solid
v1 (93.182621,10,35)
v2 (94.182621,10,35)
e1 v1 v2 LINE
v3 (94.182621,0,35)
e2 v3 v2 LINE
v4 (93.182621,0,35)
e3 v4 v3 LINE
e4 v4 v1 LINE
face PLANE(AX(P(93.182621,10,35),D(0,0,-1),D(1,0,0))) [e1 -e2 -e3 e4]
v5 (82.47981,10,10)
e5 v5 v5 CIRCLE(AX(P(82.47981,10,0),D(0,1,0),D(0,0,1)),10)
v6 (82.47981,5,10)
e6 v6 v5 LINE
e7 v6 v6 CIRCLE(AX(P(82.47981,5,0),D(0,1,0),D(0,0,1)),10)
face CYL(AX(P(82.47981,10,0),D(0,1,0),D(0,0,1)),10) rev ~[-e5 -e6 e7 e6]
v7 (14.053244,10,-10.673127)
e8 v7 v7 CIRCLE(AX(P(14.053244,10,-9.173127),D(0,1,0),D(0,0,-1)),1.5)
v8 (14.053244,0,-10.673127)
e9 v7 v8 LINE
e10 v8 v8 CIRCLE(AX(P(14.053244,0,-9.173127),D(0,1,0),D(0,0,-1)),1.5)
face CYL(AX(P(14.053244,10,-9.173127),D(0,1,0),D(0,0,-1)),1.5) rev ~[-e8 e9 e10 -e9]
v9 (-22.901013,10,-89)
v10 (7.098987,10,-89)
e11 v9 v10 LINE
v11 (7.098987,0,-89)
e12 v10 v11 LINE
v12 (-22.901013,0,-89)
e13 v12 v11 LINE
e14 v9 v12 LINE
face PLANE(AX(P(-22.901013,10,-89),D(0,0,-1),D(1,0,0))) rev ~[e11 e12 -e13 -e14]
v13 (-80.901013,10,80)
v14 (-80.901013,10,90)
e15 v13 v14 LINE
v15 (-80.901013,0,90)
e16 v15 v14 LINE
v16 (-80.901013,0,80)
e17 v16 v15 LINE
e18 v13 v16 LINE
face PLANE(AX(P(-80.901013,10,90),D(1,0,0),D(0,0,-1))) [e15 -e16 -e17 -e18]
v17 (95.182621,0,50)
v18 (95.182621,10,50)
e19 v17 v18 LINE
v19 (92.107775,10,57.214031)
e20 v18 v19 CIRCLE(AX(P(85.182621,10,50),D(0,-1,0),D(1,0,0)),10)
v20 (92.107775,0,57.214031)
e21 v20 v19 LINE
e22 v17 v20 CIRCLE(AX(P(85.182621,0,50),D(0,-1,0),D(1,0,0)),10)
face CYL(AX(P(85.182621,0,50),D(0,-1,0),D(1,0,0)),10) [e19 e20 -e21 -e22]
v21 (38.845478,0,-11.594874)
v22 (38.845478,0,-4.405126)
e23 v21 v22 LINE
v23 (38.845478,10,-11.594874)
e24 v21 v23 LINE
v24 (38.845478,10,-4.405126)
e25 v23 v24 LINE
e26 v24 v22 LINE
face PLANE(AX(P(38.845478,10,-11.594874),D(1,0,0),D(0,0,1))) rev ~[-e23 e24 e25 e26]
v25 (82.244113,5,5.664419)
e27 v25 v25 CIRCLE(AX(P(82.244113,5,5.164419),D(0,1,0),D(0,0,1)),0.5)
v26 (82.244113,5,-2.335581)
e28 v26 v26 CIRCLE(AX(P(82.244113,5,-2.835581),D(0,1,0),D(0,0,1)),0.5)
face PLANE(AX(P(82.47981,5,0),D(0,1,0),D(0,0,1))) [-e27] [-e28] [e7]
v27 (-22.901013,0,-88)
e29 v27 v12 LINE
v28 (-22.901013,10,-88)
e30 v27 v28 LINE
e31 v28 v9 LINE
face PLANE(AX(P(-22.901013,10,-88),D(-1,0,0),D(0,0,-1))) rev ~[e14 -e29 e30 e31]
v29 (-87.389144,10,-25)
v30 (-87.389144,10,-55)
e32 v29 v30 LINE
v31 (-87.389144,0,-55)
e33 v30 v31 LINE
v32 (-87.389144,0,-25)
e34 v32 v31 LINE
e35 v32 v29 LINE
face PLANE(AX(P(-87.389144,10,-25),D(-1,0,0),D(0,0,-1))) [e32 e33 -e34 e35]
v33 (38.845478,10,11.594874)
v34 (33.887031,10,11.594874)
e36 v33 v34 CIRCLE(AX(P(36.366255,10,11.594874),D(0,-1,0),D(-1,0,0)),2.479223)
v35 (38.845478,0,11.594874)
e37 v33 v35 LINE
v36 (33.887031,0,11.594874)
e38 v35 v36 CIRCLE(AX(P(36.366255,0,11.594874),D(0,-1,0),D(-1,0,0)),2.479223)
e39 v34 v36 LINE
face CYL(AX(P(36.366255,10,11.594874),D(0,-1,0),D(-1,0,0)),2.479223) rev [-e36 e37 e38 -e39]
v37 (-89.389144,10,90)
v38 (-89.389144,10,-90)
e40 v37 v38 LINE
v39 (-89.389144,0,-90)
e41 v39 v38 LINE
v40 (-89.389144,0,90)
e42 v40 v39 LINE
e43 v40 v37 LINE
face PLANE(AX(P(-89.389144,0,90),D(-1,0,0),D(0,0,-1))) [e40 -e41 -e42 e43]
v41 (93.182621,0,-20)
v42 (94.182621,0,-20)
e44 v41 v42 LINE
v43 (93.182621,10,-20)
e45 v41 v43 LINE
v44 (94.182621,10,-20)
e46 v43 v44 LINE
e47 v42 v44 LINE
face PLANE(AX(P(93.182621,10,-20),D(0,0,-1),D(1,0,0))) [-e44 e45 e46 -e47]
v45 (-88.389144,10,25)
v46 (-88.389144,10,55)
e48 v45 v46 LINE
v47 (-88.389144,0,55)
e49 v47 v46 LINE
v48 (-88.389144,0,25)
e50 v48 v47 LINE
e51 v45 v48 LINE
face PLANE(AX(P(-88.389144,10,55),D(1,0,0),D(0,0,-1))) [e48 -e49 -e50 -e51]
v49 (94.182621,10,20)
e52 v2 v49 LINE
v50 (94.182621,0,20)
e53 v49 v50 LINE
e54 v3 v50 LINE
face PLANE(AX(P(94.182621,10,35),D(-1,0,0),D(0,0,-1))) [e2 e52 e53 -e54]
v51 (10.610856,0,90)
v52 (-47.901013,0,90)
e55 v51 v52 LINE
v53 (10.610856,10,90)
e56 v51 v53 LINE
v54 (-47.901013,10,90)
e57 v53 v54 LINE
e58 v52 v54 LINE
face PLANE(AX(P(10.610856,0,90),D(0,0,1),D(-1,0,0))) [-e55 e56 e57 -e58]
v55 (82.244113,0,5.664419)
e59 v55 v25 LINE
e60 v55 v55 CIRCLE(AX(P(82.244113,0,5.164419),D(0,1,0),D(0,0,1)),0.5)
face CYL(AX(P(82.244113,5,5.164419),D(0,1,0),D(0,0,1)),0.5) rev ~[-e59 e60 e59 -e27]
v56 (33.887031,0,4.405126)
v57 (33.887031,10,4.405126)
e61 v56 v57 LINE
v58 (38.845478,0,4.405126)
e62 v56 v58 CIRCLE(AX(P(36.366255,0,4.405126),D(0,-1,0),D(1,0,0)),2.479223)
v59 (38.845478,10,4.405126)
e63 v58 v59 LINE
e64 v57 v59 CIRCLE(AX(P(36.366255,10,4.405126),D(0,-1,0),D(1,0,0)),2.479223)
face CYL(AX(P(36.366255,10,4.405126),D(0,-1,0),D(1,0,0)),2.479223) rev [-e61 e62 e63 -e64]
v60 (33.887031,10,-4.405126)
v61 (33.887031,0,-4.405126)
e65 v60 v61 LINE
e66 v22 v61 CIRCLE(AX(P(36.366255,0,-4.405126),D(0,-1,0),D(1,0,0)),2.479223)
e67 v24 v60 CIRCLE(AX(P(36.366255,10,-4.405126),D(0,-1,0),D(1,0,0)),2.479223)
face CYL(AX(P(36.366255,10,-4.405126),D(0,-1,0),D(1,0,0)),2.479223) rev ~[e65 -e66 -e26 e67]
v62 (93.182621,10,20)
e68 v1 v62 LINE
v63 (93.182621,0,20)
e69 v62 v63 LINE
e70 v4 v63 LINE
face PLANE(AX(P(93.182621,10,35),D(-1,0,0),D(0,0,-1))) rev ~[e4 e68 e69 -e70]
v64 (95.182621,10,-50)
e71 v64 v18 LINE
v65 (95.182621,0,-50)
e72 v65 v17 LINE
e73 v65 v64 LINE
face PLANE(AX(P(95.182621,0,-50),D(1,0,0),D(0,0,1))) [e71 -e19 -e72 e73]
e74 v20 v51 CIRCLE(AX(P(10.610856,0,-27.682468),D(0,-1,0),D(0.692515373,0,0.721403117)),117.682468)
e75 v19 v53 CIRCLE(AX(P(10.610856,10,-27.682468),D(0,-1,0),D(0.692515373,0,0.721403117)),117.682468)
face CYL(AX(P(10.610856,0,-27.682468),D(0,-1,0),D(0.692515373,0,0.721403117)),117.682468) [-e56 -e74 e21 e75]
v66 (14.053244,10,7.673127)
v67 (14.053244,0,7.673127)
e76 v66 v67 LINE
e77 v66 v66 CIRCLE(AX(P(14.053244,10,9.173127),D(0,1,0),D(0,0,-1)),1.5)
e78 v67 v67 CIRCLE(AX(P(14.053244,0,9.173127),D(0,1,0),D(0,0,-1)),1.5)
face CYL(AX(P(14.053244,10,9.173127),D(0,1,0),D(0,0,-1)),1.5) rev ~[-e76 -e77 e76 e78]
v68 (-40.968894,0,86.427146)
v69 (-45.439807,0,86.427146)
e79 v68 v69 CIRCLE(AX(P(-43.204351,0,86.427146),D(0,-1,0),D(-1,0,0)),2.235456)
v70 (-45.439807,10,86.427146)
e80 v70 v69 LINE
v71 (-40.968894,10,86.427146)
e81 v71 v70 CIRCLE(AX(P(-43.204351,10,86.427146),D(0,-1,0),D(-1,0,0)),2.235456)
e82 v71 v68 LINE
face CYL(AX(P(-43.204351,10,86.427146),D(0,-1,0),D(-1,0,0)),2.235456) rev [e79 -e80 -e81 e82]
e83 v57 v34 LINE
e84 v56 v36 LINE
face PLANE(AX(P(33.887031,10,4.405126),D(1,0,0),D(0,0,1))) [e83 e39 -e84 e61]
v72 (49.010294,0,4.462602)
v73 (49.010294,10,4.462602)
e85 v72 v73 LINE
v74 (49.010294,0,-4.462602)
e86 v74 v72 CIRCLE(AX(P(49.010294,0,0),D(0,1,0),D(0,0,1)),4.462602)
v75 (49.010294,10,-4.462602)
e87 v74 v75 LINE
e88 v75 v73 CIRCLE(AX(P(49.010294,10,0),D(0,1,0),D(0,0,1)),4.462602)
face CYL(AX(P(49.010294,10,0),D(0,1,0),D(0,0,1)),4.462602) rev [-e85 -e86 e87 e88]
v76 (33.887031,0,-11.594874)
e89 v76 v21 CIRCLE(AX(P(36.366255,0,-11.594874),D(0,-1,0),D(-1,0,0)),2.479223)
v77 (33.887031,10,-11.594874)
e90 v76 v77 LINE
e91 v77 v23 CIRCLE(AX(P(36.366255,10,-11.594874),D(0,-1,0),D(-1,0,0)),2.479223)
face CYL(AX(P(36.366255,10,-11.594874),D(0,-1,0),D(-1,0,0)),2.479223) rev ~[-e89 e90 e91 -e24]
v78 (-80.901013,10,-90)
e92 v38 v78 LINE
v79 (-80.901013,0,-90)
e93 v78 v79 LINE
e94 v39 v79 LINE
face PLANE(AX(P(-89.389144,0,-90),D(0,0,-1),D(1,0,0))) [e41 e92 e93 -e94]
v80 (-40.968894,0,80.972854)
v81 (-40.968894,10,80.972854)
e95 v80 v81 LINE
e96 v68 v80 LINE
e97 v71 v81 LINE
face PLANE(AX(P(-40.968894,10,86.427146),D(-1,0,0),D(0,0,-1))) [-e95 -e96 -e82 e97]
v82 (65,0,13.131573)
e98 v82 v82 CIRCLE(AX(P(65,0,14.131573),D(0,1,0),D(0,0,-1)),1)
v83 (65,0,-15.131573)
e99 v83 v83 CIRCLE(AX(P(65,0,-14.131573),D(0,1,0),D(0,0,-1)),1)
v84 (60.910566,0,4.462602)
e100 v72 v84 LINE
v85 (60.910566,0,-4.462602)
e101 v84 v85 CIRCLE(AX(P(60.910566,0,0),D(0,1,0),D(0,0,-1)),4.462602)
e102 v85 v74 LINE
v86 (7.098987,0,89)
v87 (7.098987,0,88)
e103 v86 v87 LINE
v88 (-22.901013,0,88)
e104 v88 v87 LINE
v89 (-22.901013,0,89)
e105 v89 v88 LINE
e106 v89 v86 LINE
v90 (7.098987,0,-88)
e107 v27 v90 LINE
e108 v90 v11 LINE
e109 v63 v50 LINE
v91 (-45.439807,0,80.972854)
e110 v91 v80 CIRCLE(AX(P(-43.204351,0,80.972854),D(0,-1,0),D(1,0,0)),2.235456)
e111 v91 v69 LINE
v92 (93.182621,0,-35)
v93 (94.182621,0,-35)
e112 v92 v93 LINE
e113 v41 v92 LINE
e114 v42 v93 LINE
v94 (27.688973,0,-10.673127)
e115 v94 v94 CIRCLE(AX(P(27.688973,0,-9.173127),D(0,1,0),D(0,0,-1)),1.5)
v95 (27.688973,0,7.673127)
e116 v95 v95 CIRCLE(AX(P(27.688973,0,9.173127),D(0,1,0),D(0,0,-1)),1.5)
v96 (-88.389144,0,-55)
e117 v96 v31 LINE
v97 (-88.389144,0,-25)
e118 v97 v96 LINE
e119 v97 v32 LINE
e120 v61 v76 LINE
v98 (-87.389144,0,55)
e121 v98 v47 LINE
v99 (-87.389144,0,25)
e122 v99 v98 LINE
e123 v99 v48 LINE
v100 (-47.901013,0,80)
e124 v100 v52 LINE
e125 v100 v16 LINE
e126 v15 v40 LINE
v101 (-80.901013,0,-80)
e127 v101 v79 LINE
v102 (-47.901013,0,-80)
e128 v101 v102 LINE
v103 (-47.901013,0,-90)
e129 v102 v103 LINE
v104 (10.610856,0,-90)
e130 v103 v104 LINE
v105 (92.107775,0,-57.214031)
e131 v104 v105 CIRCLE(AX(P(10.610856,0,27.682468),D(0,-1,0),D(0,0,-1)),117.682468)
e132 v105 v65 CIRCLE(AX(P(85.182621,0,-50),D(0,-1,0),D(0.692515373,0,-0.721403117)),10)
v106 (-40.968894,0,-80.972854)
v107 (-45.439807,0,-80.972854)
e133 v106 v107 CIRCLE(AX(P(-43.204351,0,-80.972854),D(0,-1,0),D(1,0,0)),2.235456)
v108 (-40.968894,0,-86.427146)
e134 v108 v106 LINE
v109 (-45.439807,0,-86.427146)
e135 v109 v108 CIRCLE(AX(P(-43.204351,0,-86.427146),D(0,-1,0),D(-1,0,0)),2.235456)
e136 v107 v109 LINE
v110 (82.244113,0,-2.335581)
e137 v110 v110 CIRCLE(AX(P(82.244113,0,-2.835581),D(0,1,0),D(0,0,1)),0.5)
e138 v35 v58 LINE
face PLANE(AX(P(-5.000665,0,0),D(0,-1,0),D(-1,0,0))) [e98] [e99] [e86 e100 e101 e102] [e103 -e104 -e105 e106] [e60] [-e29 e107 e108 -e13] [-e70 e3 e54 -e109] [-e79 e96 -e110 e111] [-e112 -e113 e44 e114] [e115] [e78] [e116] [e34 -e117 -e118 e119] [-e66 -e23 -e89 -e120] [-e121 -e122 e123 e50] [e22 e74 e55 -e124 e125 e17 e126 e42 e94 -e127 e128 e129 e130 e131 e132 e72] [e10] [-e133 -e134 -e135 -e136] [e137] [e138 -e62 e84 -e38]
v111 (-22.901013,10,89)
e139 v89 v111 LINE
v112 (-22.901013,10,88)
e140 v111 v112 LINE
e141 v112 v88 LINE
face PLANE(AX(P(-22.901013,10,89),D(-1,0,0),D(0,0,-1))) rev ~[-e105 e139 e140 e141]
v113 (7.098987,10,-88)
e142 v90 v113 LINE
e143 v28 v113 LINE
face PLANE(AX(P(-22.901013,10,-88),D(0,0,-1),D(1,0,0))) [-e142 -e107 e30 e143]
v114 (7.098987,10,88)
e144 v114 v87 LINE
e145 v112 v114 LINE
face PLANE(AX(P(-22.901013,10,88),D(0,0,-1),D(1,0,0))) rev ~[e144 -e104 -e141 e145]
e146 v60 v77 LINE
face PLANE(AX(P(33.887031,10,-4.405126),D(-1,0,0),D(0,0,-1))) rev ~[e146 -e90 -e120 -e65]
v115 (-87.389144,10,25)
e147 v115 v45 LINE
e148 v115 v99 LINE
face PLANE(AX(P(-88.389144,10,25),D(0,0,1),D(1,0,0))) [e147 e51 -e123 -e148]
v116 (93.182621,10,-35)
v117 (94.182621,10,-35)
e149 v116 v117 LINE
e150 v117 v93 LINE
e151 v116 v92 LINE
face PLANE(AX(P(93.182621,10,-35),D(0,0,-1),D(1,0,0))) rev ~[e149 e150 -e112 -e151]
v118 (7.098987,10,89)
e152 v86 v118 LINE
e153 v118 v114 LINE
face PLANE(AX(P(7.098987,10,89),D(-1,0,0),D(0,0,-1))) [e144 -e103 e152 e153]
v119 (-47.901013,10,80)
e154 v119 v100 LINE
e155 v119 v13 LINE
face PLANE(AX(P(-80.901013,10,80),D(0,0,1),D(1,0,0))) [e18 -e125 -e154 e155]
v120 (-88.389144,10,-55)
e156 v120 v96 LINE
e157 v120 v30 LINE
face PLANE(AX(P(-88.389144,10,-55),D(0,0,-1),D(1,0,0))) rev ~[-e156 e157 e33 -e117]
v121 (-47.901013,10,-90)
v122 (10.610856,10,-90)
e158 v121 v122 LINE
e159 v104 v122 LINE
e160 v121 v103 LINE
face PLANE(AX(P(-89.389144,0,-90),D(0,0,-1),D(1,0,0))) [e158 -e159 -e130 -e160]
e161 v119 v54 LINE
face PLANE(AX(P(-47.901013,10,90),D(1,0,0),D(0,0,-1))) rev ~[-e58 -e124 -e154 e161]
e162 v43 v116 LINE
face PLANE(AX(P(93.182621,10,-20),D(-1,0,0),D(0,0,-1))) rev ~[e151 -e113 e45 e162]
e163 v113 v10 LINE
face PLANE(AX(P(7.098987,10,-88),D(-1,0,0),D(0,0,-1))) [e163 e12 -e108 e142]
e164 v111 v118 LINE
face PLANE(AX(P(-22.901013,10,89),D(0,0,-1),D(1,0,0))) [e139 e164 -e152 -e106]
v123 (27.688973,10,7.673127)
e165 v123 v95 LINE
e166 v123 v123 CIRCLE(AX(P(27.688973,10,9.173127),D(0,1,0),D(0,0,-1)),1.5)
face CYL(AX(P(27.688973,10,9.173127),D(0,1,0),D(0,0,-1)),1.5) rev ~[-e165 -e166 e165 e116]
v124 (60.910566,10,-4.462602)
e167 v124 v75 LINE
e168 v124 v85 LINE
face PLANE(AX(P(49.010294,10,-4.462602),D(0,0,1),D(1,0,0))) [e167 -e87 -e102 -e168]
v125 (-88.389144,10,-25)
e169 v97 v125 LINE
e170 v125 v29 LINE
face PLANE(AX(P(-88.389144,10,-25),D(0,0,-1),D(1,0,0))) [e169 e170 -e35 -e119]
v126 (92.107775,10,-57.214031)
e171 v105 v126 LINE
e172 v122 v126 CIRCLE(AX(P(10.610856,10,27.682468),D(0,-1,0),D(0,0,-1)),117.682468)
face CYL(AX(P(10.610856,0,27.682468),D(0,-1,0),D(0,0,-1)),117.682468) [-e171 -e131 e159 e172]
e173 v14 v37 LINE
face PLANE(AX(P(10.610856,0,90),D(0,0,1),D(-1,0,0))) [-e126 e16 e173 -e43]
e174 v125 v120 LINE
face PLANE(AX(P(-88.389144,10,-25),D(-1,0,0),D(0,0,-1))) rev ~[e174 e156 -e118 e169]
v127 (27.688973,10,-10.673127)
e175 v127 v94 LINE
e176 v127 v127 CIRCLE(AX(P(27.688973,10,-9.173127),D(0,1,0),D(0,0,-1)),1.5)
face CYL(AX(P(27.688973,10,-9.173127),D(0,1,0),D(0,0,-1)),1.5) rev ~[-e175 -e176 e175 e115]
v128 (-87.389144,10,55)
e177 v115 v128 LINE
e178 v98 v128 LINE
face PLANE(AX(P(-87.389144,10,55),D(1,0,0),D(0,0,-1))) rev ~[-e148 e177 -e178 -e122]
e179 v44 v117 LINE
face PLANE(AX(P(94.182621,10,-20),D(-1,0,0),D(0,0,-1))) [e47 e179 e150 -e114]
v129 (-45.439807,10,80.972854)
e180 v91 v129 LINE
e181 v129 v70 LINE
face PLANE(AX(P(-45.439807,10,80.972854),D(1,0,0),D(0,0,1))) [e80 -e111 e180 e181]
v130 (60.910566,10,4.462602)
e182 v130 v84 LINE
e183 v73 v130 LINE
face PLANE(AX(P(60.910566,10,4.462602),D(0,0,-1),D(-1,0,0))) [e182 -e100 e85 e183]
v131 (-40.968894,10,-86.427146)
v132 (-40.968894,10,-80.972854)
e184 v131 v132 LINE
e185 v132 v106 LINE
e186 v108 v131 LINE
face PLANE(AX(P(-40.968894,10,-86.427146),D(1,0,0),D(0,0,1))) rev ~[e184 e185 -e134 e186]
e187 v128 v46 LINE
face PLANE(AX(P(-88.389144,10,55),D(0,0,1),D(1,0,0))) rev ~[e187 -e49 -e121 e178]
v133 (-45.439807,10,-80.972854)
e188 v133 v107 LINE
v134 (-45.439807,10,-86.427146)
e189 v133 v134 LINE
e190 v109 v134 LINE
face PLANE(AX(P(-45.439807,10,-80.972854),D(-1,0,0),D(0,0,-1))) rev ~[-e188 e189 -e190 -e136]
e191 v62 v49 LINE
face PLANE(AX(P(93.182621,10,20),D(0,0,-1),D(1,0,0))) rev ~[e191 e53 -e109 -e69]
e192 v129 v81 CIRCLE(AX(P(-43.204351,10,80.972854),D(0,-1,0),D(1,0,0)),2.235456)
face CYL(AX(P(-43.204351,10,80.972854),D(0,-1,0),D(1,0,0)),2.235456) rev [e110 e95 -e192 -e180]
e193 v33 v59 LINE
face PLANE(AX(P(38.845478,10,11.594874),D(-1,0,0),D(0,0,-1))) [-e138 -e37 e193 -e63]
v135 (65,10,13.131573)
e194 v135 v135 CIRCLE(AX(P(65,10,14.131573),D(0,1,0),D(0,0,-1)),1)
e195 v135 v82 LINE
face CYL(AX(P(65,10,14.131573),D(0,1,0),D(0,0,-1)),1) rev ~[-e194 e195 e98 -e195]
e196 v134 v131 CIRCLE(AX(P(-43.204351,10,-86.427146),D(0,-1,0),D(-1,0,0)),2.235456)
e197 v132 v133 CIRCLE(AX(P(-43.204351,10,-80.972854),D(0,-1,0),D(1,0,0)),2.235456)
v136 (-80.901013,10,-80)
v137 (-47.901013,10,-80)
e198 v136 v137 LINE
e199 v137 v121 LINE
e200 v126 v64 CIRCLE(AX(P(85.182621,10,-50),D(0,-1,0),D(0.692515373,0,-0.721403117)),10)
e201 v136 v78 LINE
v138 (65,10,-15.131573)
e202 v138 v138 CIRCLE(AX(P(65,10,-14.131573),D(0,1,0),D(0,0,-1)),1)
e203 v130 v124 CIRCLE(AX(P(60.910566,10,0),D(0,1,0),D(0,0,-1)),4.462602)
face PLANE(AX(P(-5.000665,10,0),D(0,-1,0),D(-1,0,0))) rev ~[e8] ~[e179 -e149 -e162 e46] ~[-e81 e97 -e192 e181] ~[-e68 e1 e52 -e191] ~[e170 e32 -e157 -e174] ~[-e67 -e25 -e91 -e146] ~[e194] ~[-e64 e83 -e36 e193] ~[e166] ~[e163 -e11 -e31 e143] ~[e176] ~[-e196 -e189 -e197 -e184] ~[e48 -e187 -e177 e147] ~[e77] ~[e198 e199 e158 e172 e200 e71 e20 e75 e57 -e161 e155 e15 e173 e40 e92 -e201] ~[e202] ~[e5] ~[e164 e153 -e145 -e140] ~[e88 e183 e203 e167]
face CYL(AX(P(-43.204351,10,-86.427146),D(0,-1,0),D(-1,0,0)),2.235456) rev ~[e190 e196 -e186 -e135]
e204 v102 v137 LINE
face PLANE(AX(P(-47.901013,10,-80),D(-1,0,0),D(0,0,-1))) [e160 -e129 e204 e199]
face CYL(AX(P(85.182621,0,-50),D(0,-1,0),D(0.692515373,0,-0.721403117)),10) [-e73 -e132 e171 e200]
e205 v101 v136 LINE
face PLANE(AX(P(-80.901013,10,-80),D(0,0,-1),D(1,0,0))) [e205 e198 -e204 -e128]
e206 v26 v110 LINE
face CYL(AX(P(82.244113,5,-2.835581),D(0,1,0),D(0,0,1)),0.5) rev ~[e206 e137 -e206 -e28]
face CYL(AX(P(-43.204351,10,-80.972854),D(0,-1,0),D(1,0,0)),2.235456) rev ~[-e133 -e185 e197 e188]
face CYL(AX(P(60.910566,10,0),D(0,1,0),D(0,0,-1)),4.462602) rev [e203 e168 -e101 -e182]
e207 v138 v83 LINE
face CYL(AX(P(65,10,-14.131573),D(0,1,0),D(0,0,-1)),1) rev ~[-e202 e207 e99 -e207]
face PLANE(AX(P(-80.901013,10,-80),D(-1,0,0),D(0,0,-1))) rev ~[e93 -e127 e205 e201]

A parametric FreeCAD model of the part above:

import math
import FreeCAD as App
import Part
import Sketcher

doc = App.newDocument("Part")
params = doc.addObject("Spreadsheet::Sheet", "Params")
for row, (alias, value) in enumerate([
    ("sketch1_radius", "10 mm"),
    ("sketch1_width", "100 mm"),
    ("sketch1_height", "180 mm"),
    ("pad1_length", "10 mm"),
    ("sketch2_diameter", "2 mm"),
    ("sketch2_diameter2", "3 mm"),
    ("sketch2_width", "33 mm"),
    ("sketch2_height", "10 mm"),
    ("pocket1_length", "30 mm"),
    ("sketch3_diameter", "20 mm"),
    ("pocket2_length", "10 mm"),
    ("pocket3_length", "30 mm"),
    ("sketch5_width", "30 mm"),
    ("sketch5_width2", "1 mm"),
    ("sketch5_height", "15 mm"),
    ("pocket4_length", "30 mm"),
    ("sketch6_diameter", "1 mm"),
    ("pocket5_length", "30 mm"),
], start=1):
    params.set(f"A{row}", alias)
    params.set(f"B{row}", "=" + value)
    params.setAlias(f"B{row}", alias)

body = doc.addObject("PartDesign::Body", "Body")

# Sketch on XZ plane
sketch1 = body.newObject("Sketcher::SketchObject", "Sketch")
sketch1.AttachmentSupport = (doc.getObject("XZ_Plane"), [""])
sketch1.MapMode = "FlatFace"
sketch1.addGeometry(Part.LineSegment(App.Vector(-89, -90, 0), App.Vector(-89, 90, 0)), False)
sketch1.addGeometry(Part.LineSegment(App.Vector(-89, 90, 0), App.Vector(11, 90, 0)), False)
sketch1.addGeometry(Part.ArcOfCircle(Part.Circle(App.Vector(11, -28, 0), App.Vector(0, 0, 1), 118), math.radians(46), math.radians(90)), False)
sketch1.addGeometry(Part.ArcOfCircle(Part.Circle(App.Vector(85, 50, 0), App.Vector(0, 0, 1), 10), math.radians(0), math.radians(46)), False)
sketch1.addGeometry(Part.LineSegment(App.Vector(95, 50, 0), App.Vector(95, -50, 0)), False)
sketch1.addGeometry(Part.ArcOfCircle(Part.Circle(App.Vector(85, -50, 0), App.Vector(0, 0, 1), 10), math.radians(-46), math.radians(0)), False)
sketch1.addGeometry(Part.ArcOfCircle(Part.Circle(App.Vector(11, 28, 0), App.Vector(0, 0, 1), 118), math.radians(-90), math.radians(-46)), False)
sketch1.addGeometry(Part.LineSegment(App.Vector(11, -90, 0), App.Vector(-89, -90, 0)), False)
sketch1.addConstraint(Sketcher.Constraint("Coincident", 0, 2, 1, 1))
sketch1.addConstraint(Sketcher.Constraint("Tangent", 1, 2, 2, 2))
sketch1.addConstraint(Sketcher.Constraint("Tangent", 2, 1, 3, 2))
sketch1.addConstraint(Sketcher.Constraint("Tangent", 3, 1, 4, 1))
sketch1.addConstraint(Sketcher.Constraint("Tangent", 4, 2, 5, 2))
sketch1.addConstraint(Sketcher.Constraint("Tangent", 5, 1, 6, 2))
sketch1.addConstraint(Sketcher.Constraint("Tangent", 6, 1, 7, 1))
sketch1.addConstraint(Sketcher.Constraint("Coincident", 7, 2, 0, 1))
sketch1.addConstraint(Sketcher.Constraint("Vertical", 0))
sketch1.addConstraint(Sketcher.Constraint("Horizontal", 1))
sketch1.addConstraint(Sketcher.Constraint("Vertical", 4))
sketch1.addConstraint(Sketcher.Constraint("Horizontal", 7))
sketch1.addConstraint(Sketcher.Constraint("Equal", 3, 5))
sketch1.addConstraint(Sketcher.Constraint("Equal", 2, 6))
sketch1.addConstraint(Sketcher.Constraint("Symmetric", 2, 3, 6, 3, -1))
sketch1.addConstraint(Sketcher.Constraint("Equal", 7, 4))
sketch1.addConstraint(Sketcher.Constraint("Radius", 3, 10.0))
sketch1.addConstraint(Sketcher.Constraint("DistanceX", 1, 1, 1, 2, 100.0))
sketch1.addConstraint(Sketcher.Constraint("DistanceY", 0, 1, 0, 2, 180.0))
sketch1.addConstraint(Sketcher.Constraint("Radius", 2, 117.682468))
sketch1.addConstraint(Sketcher.Constraint("DistanceX", -1, 1, 3, 3, 85.182621))
sketch1.setExpression("Constraints[16]", "Params.sketch1_radius")
sketch1.setExpression("Constraints[17]", "Params.sketch1_width")
sketch1.setExpression("Constraints[18]", "Params.sketch1_height")
pad1 = body.newObject("PartDesign::Pad", "Pad")
pad1.Profile = sketch1
pad1.setExpression("Length", "Params.pad1_length")
pad1.Reversed = True

# Sketch on XZ plane
sketch2 = body.newObject("Sketcher::SketchObject", "Sketch001")
sketch2.AttachmentSupport = (doc.getObject("XZ_Plane"), [""])
sketch2.MapMode = "FlatFace"
sketch2.AttachmentOffset = App.Placement(App.Vector(0, 0, -10), App.Rotation())
sketch2.addGeometry(Part.Circle(App.Vector(65, -14.1, 0), App.Vector(0, 0, 1), 1), False)
sketch2.addGeometry(Part.Circle(App.Vector(27.7, -9.2, 0), App.Vector(0, 0, 1), 1.5), False)
sketch2.addGeometry(Part.Circle(App.Vector(14.1, -9.2, 0), App.Vector(0, 0, 1), 1.5), False)
sketch2.addGeometry(Part.Circle(App.Vector(14.1, 9.2, 0), App.Vector(0, 0, 1), 1.5), False)
sketch2.addGeometry(Part.Circle(App.Vector(27.7, 9.2, 0), App.Vector(0, 0, 1), 1.5), False)
sketch2.addGeometry(Part.Circle(App.Vector(65, 14.1, 0), App.Vector(0, 0, 1), 1), False)
sketch2.addGeometry(Part.LineSegment(App.Vector(-41, -81, 0), App.Vector(-41, -86.4, 0)), False)
sketch2.addGeometry(Part.ArcOfCircle(Part.Circle(App.Vector(-43.2, -86.4, 0), App.Vector(0, 0, 1), 2.2), math.radians(180), math.radians(360)), False)
sketch2.addGeometry(Part.LineSegment(App.Vector(-45.4, -86.4, 0), App.Vector(-45.4, -81, 0)), False)
sketch2.addGeometry(Part.ArcOfCircle(Part.Circle(App.Vector(-43.2, -81, 0), App.Vector(0, 0, 1), 2.2), math.radians(0), math.radians(180)), False)
sketch2.addGeometry(Part.LineSegment(App.Vector(38.8, -4.4, 0), App.Vector(38.8, -11.6, 0)), False)
sketch2.addGeometry(Part.ArcOfCircle(Part.Circle(App.Vector(36.4, -11.6, 0), App.Vector(0, 0, 1), 2.5), math.radians(-180), math.radians(0)), False)
sketch2.addGeometry(Part.LineSegment(App.Vector(33.9, -11.6, 0), App.Vector(33.9, -4.4, 0)), False)
sketch2.addGeometry(Part.ArcOfCircle(Part.Circle(App.Vector(36.4, -4.4, 0), App.Vector(0, 0, 1), 2.5), math.radians(0), math.radians(180)), False)
sketch2.addGeometry(Part.LineSegment(App.Vector(-80.9, -90, 0), App.Vector(-80.9, -80, 0)), False)
sketch2.addGeometry(Part.LineSegment(App.Vector(-80.9, -80, 0), App.Vector(-47.9, -80, 0)), False)
sketch2.addGeometry(Part.LineSegment(App.Vector(-47.9, -80, 0), App.Vector(-47.9, -90, 0)), False)
sketch2.addGeometry(Part.LineSegment(App.Vector(-47.9, -90, 0), App.Vector(-80.9, -90, 0)), False)
sketch2.addGeometry(Part.LineSegment(App.Vector(38.8, 11.6, 0), App.Vector(38.8, 4.4, 0)), False)
sketch2.addGeometry(Part.ArcOfCircle(Part.Circle(App.Vector(36.4, 4.4, 0), App.Vector(0, 0, 1), 2.5), math.radians(-180), math.radians(0)), False)
sketch2.addGeometry(Part.LineSegment(App.Vector(33.9, 4.4, 0), App.Vector(33.9, 11.6, 0)), False)
sketch2.addGeometry(Part.ArcOfCircle(Part.Circle(App.Vector(36.4, 11.6, 0), App.Vector(0, 0, 1), 2.5), math.radians(0), math.radians(180)), False)
sketch2.addGeometry(Part.LineSegment(App.Vector(-41, 86.4, 0), App.Vector(-41, 81, 0)), False)
sketch2.addGeometry(Part.ArcOfCircle(Part.Circle(App.Vector(-43.2, 81, 0), App.Vector(0, 0, 1), 2.2), math.radians(180), math.radians(360)), False)
sketch2.addGeometry(Part.LineSegment(App.Vector(-45.4, 81, 0), App.Vector(-45.4, 86.4, 0)), False)
sketch2.addGeometry(Part.ArcOfCircle(Part.Circle(App.Vector(-43.2, 86.4, 0), App.Vector(0, 0, 1), 2.2), math.radians(0), math.radians(180)), False)
sketch2.addGeometry(Part.LineSegment(App.Vector(-80.9, 80, 0), App.Vector(-80.9, 90, 0)), False)
sketch2.addGeometry(Part.LineSegment(App.Vector(-80.9, 90, 0), App.Vector(-47.9, 90, 0)), False)
sketch2.addGeometry(Part.LineSegment(App.Vector(-47.9, 90, 0), App.Vector(-47.9, 80, 0)), False)
sketch2.addGeometry(Part.LineSegment(App.Vector(-47.9, 80, 0), App.Vector(-80.9, 80, 0)), False)
sketch2.addConstraint(Sketcher.Constraint("Tangent", 6, 2, 7, 2))
sketch2.addConstraint(Sketcher.Constraint("Tangent", 7, 1, 8, 1))
sketch2.addConstraint(Sketcher.Constraint("Tangent", 8, 2, 9, 2))
sketch2.addConstraint(Sketcher.Constraint("Tangent", 9, 1, 6, 1))
sketch2.addConstraint(Sketcher.Constraint("Tangent", 10, 2, 11, 2))
sketch2.addConstraint(Sketcher.Constraint("Tangent", 11, 1, 12, 1))
sketch2.addConstraint(Sketcher.Constraint("Tangent", 12, 2, 13, 2))
sketch2.addConstraint(Sketcher.Constraint("Tangent", 13, 1, 10, 1))
sketch2.addConstraint(Sketcher.Constraint("Coincident", 14, 2, 15, 1))
sketch2.addConstraint(Sketcher.Constraint("Coincident", 15, 2, 16, 1))
sketch2.addConstraint(Sketcher.Constraint("Coincident", 16, 2, 17, 1))
sketch2.addConstraint(Sketcher.Constraint("Coincident", 17, 2, 14, 1))
sketch2.addConstraint(Sketcher.Constraint("Tangent", 18, 2, 19, 2))
sketch2.addConstraint(Sketcher.Constraint("Tangent", 19, 1, 20, 1))
sketch2.addConstraint(Sketcher.Constraint("Tangent", 20, 2, 21, 2))
sketch2.addConstraint(Sketcher.Constraint("Tangent", 21, 1, 18, 1))
sketch2.addConstraint(Sketcher.Constraint("Tangent", 22, 2, 23, 2))
sketch2.addConstraint(Sketcher.Constraint("Tangent", 23, 1, 24, 1))
sketch2.addConstraint(Sketcher.Constraint("Tangent", 24, 2, 25, 2))
sketch2.addConstraint(Sketcher.Constraint("Tangent", 25, 1, 22, 1))
sketch2.addConstraint(Sketcher.Constraint("Coincident", 26, 2, 27, 1))
sketch2.addConstraint(Sketcher.Constraint("Coincident", 27, 2, 28, 1))
sketch2.addConstraint(Sketcher.Constraint("Coincident", 28, 2, 29, 1))
sketch2.addConstraint(Sketcher.Constraint("Coincident", 29, 2, 26, 1))
sketch2.addConstraint(Sketcher.Constraint("Vertical", 6))
sketch2.addConstraint(Sketcher.Constraint("Vertical", 8))
sketch2.addConstraint(Sketcher.Constraint("Vertical", 10))
sketch2.addConstraint(Sketcher.Constraint("Vertical", 12))
sketch2.addConstraint(Sketcher.Constraint("Vertical", 14))
sketch2.addConstraint(Sketcher.Constraint("Horizontal", 15))
sketch2.addConstraint(Sketcher.Constraint("Vertical", 16))
sketch2.addConstraint(Sketcher.Constraint("Horizontal", 17))
sketch2.addConstraint(Sketcher.Constraint("Vertical", 18))
sketch2.addConstraint(Sketcher.Constraint("Vertical", 20))
sketch2.addConstraint(Sketcher.Constraint("Vertical", 22))
sketch2.addConstraint(Sketcher.Constraint("Vertical", 24))
sketch2.addConstraint(Sketcher.Constraint("Vertical", 26))
sketch2.addConstraint(Sketcher.Constraint("Horizontal", 27))
sketch2.addConstraint(Sketcher.Constraint("Vertical", 28))
sketch2.addConstraint(Sketcher.Constraint("Horizontal", 29))
sketch2.addConstraint(Sketcher.Constraint("Equal", 1, 2))
sketch2.addConstraint(Sketcher.Constraint("Equal", 2, 3))
sketch2.addConstraint(Sketcher.Constraint("Equal", 3, 4))
sketch2.addConstraint(Sketcher.Constraint("Equal", 0, 5))
sketch2.addConstraint(Sketcher.Constraint("Equal", 13, 19))
sketch2.addConstraint(Sketcher.Constraint("Equal", 9, 23))
sketch2.addConstraint(Sketcher.Constraint("Symmetric", 2, 3, 3, 3, -1))
sketch2.addConstraint(Sketcher.Constraint("Symmetric", 1, 3, 4, 3, -1))
sketch2.addConstraint(Sketcher.Constraint("Symmetric", 0, 3, 5, 3, -1))
sketch2.addConstraint(Sketcher.Constraint("Symmetric", 13, 3, 19, 3, -1))
sketch2.addConstraint(Sketcher.Constraint("Symmetric", 9, 3, 23, 3, -1))
sketch2.addConstraint(Sketcher.Constraint("Symmetric", 17, 2, 26, 2, -1))
sketch2.addConstraint(Sketcher.Constraint("Symmetric", 15, 2, 28, 2, -1))
sketch2.addConstraint(Sketcher.Constraint("Horizontal", 1, 3, 2, 3))
sketch2.addConstraint(Sketcher.Constraint("Equal", 12, 18))
sketch2.addConstraint(Sketcher.Constraint("Equal", 8, 22))
sketch2.addConstraint(Sketcher.Constraint("Diameter", 0, 2.0))
sketch2.addConstraint(Sketcher.Constraint("Diameter", 1, 3.0))
sketch2.addConstraint(Sketcher.Constraint("DistanceX", 15, 1, 15, 2, 33.0))
sketch2.addConstraint(Sketcher.Constraint("DistanceY", 14, 1, 14, 2, 10.0))
sketch2.addConstraint(Sketcher.Constraint("DistanceX", -1, 1, 0, 3, 65.0))
sketch2.addConstraint(Sketcher.Constraint("DistanceY", 14, 2, -1, 1, 80.0))
sketch2.addConstraint(Sketcher.Constraint("DistanceY", 11, 3, 19, 3, 16.0))
sketch2.addConstraint(Sketcher.Constraint("Radius", 7, 2.235456))
sketch2.addConstraint(Sketcher.Constraint("Radius", 11, 2.479223))
sketch2.addConstraint(Sketcher.Constraint("DistanceY", 11, 3, 4, 3, 20.768001))
sketch2.addConstraint(Sketcher.Constraint("DistanceY", 6, 2, 6, 1, 5.454291))
sketch2.addConstraint(Sketcher.Constraint("DistanceY", 0, 3, 3, 3, 23.3047))
sketch2.addConstraint(Sketcher.Constraint("DistanceY", 10, 2, 10, 1, 7.189748))
sketch2.addConstraint(Sketcher.Constraint("DistanceX", 7, 3, -1, 1, 43.204351))
sketch2.addConstraint(Sketcher.Constraint("DistanceX", -1, 1, 10, 2, 38.845478))
sketch2.addConstraint(Sketcher.Constraint("DistanceX", 2, 3, 1, 3, 13.635729))
sketch2.addConstraint(Sketcher.Constraint("DistanceY", 7, 3, 2, 3, 77.254019))
sketch2.addConstraint(Sketcher.Constraint("DistanceX", 1, 3, 11, 3, 8.677282))
sketch2.addConstraint(Sketcher.Constraint("DistanceX", 14, 2, 9, 3, 37.696662))
sketch2.setExpression("Constraints[56]", "Params.sketch2_diameter")
sketch2.setExpression("Constraints[57]", "Params.sketch2_diameter2")
sketch2.setExpression("Constraints[58]", "Params.sketch2_width")
sketch2.setExpression("Constraints[59]", "Params.sketch2_height")
pocket1 = body.newObject("PartDesign::Pocket", "Pocket")
pocket1.Profile = sketch2
pocket1.setExpression("Length", "Params.pocket1_length")
pocket1.Midplane = True

# Sketch on XZ plane
sketch3 = body.newObject("Sketcher::SketchObject", "Sketch002")
sketch3.AttachmentSupport = (doc.getObject("XZ_Plane"), [""])
sketch3.MapMode = "FlatFace"
sketch3.AttachmentOffset = App.Placement(App.Vector(0, 0, -10), App.Rotation())
sketch3.addGeometry(Part.Circle(App.Vector(82, 0, 0), App.Vector(0, 0, 1), 10), False)
sketch3.addConstraint(Sketcher.Constraint("PointOnObject", 0, 3, -1))
sketch3.addConstraint(Sketcher.Constraint("Diameter", 0, 20.0))
sketch3.addConstraint(Sketcher.Constraint("DistanceX", -1, 1, 0, 3, 82.47981))
sketch3.setExpression("Constraints[1]", "Params.sketch3_diameter")
pocket2 = body.newObject("PartDesign::Pocket", "Pocket001")
pocket2.Profile = sketch3
pocket2.setExpression("Length", "Params.pocket2_length")
pocket2.Midplane = True

# Sketch on XZ plane
sketch4 = body.newObject("Sketcher::SketchObject", "Sketch003")
sketch4.AttachmentSupport = (doc.getObject("XZ_Plane"), [""])
sketch4.MapMode = "FlatFace"
sketch4.AttachmentOffset = App.Placement(App.Vector(0, 0, -10), App.Rotation())
sketch4.addGeometry(Part.LineSegment(App.Vector(60.9, -4.5, 0), App.Vector(49, -4.5, 0)), False)
sketch4.addGeometry(Part.ArcOfCircle(Part.Circle(App.Vector(49, 0, 0), App.Vector(0, 0, 1), 4.5), math.radians(90), math.radians(270)), False)
sketch4.addGeometry(Part.LineSegment(App.Vector(49, 4.5, 0), App.Vector(60.9, 4.5, 0)), False)
sketch4.addGeometry(Part.ArcOfCircle(Part.Circle(App.Vector(60.9, 0, 0), App.Vector(0, 0, 1), 4.5), math.radians(-90), math.radians(90)), False)
sketch4.addConstraint(Sketcher.Constraint("Tangent", 0, 2, 1, 2))
sketch4.addConstraint(Sketcher.Constraint("Tangent", 1, 1, 2, 1))
sketch4.addConstraint(Sketcher.Constraint("Tangent", 2, 2, 3, 2))
sketch4.addConstraint(Sketcher.Constraint("Tangent", 3, 1, 0, 1))
sketch4.addConstraint(Sketcher.Constraint("Horizontal", 0))
sketch4.addConstraint(Sketcher.Constraint("Horizontal", 2))
sketch4.addConstraint(Sketcher.Constraint("PointOnObject", 1, 3, -1))
sketch4.addConstraint(Sketcher.Constraint("Radius", 1, 4.462602))
sketch4.addConstraint(Sketcher.Constraint("DistanceX", 0, 2, 0, 1, 11.900272))
sketch4.addConstraint(Sketcher.Constraint("DistanceX", -1, 1, 1, 3, 49.010294))
pocket3 = body.newObject("PartDesign::Pocket", "Pocket002")
pocket3.Profile = sketch4
pocket3.setExpression("Length", "Params.pocket3_length")
pocket3.Midplane = True

# Sketch on XZ plane
sketch5 = body.newObject("Sketcher::SketchObject", "Sketch004")
sketch5.AttachmentSupport = (doc.getObject("XZ_Plane"), [""])
sketch5.MapMode = "FlatFace"
sketch5.AttachmentOffset = App.Placement(App.Vector(0, 0, -10), App.Rotation())
sketch5.addGeometry(Part.LineSegment(App.Vector(-22.9, -89, 0), App.Vector(-22.9, -88, 0)), False)
sketch5.addGeometry(Part.LineSegment(App.Vector(-22.9, -88, 0), App.Vector(7.1, -88, 0)), False)
sketch5.addGeometry(Part.LineSegment(App.Vector(7.1, -88, 0), App.Vector(7.1, -89, 0)), False)
sketch5.addGeometry(Part.LineSegment(App.Vector(7.1, -89, 0), App.Vector(-22.9, -89, 0)), False)
sketch5.addGeometry(Part.LineSegment(App.Vector(-88.4, -55, 0), App.Vector(-88.4, -25, 0)), False)
sketch5.addGeometry(Part.LineSegment(App.Vector(-88.4, -25, 0), App.Vector(-87.4, -25, 0)), False)
sketch5.addGeometry(Part.LineSegment(App.Vector(-87.4, -25, 0), App.Vector(-87.4, -55, 0)), False)
sketch5.addGeometry(Part.LineSegment(App.Vector(-87.4, -55, 0), App.Vector(-88.4, -55, 0)), False)
sketch5.addGeometry(Part.LineSegment(App.Vector(93.2, -35, 0), App.Vector(93.2, -20, 0)), False)
sketch5.addGeometry(Part.LineSegment(App.Vector(93.2, -20, 0), App.Vector(94.2, -20, 0)), False)
sketch5.addGeometry(Part.LineSegment(App.Vector(94.2, -20, 0), App.Vector(94.2, -35, 0)), False)
sketch5.addGeometry(Part.LineSegment(App.Vector(94.2, -35, 0), App.Vector(93.2, -35, 0)), False)
sketch5.addGeometry(Part.LineSegment(App.Vector(93.2, 20, 0), App.Vector(93.2, 35, 0)), False)
sketch5.addGeometry(Part.LineSegment(App.Vector(93.2, 35, 0), App.Vector(94.2, 35, 0)), False)
sketch5.addGeometry(Part.LineSegment(App.Vector(94.2, 35, 0), App.Vector(94.2, 20, 0)), False)
sketch5.addGeometry(Part.LineSegment(App.Vector(94.2, 20, 0), App.Vector(93.2, 20, 0)), False)
sketch5.addGeometry(Part.LineSegment(App.Vector(-22.9, 88, 0), App.Vector(-22.9, 89, 0)), False)
sketch5.addGeometry(Part.LineSegment(App.Vector(-22.9, 89, 0), App.Vector(7.1, 89, 0)), False)
sketch5.addGeometry(Part.LineSegment(App.Vector(7.1, 89, 0), App.Vector(7.1, 88, 0)), False)
sketch5.addGeometry(Part.LineSegment(App.Vector(7.1, 88, 0), App.Vector(-22.9, 88, 0)), False)
sketch5.addGeometry(Part.LineSegment(App.Vector(-88.4, 25, 0), App.Vector(-88.4, 55, 0)), False)
sketch5.addGeometry(Part.LineSegment(App.Vector(-88.4, 55, 0), App.Vector(-87.4, 55, 0)), False)
sketch5.addGeometry(Part.LineSegment(App.Vector(-87.4, 55, 0), App.Vector(-87.4, 25, 0)), False)
sketch5.addGeometry(Part.LineSegment(App.Vector(-87.4, 25, 0), App.Vector(-88.4, 25, 0)), False)
sketch5.addConstraint(Sketcher.Constraint("Coincident", 0, 2, 1, 1))
sketch5.addConstraint(Sketcher.Constraint("Coincident", 1, 2, 2, 1))
sketch5.addConstraint(Sketcher.Constraint("Coincident", 2, 2, 3, 1))
sketch5.addConstraint(Sketcher.Constraint("Coincident", 3, 2, 0, 1))
sketch5.addConstraint(Sketcher.Constraint("Coincident", 4, 2, 5, 1))
sketch5.addConstraint(Sketcher.Constraint("Coincident", 5, 2, 6, 1))
sketch5.addConstraint(Sketcher.Constraint("Coincident", 6, 2, 7, 1))
sketch5.addConstraint(Sketcher.Constraint("Coincident", 7, 2, 4, 1))
sketch5.addConstraint(Sketcher.Constraint("Coincident", 8, 2, 9, 1))
sketch5.addConstraint(Sketcher.Constraint("Coincident", 9, 2, 10, 1))
sketch5.addConstraint(Sketcher.Constraint("Coincident", 10, 2, 11, 1))
sketch5.addConstraint(Sketcher.Constraint("Coincident", 11, 2, 8, 1))
sketch5.addConstraint(Sketcher.Constraint("Coincident", 12, 2, 13, 1))
sketch5.addConstraint(Sketcher.Constraint("Coincident", 13, 2, 14, 1))
sketch5.addConstraint(Sketcher.Constraint("Coincident", 14, 2, 15, 1))
sketch5.addConstraint(Sketcher.Constraint("Coincident", 15, 2, 12, 1))
sketch5.addConstraint(Sketcher.Constraint("Coincident", 16, 2, 17, 1))
sketch5.addConstraint(Sketcher.Constraint("Coincident", 17, 2, 18, 1))
sketch5.addConstraint(Sketcher.Constraint("Coincident", 18, 2, 19, 1))
sketch5.addConstraint(Sketcher.Constraint("Coincident", 19, 2, 16, 1))
sketch5.addConstraint(Sketcher.Constraint("Coincident", 20, 2, 21, 1))
sketch5.addConstraint(Sketcher.Constraint("Coincident", 21, 2, 22, 1))
sketch5.addConstraint(Sketcher.Constraint("Coincident", 22, 2, 23, 1))
sketch5.addConstraint(Sketcher.Constraint("Coincident", 23, 2, 20, 1))
sketch5.addConstraint(Sketcher.Constraint("Vertical", 0))
sketch5.addConstraint(Sketcher.Constraint("Horizontal", 1))
sketch5.addConstraint(Sketcher.Constraint("Vertical", 2))
sketch5.addConstraint(Sketcher.Constraint("Horizontal", 3))
sketch5.addConstraint(Sketcher.Constraint("Vertical", 4))
sketch5.addConstraint(Sketcher.Constraint("Horizontal", 5))
sketch5.addConstraint(Sketcher.Constraint("Vertical", 6))
sketch5.addConstraint(Sketcher.Constraint("Horizontal", 7))
sketch5.addConstraint(Sketcher.Constraint("Vertical", 8))
sketch5.addConstraint(Sketcher.Constraint("Horizontal", 9))
sketch5.addConstraint(Sketcher.Constraint("Vertical", 10))
sketch5.addConstraint(Sketcher.Constraint("Horizontal", 11))
sketch5.addConstraint(Sketcher.Constraint("Vertical", 12))
sketch5.addConstraint(Sketcher.Constraint("Horizontal", 13))
sketch5.addConstraint(Sketcher.Constraint("Vertical", 14))
sketch5.addConstraint(Sketcher.Constraint("Horizontal", 15))
sketch5.addConstraint(Sketcher.Constraint("Vertical", 16))
sketch5.addConstraint(Sketcher.Constraint("Horizontal", 17))
sketch5.addConstraint(Sketcher.Constraint("Vertical", 18))
sketch5.addConstraint(Sketcher.Constraint("Horizontal", 19))
sketch5.addConstraint(Sketcher.Constraint("Vertical", 20))
sketch5.addConstraint(Sketcher.Constraint("Horizontal", 21))
sketch5.addConstraint(Sketcher.Constraint("Vertical", 22))
sketch5.addConstraint(Sketcher.Constraint("Horizontal", 23))
sketch5.addConstraint(Sketcher.Constraint("Symmetric", 11, 2, 12, 2, -1))
sketch5.addConstraint(Sketcher.Constraint("Symmetric", 9, 2, 14, 2, -1))
sketch5.addConstraint(Sketcher.Constraint("Symmetric", 3, 2, 16, 2, -1))
sketch5.addConstraint(Sketcher.Constraint("Symmetric", 1, 2, 18, 2, -1))
sketch5.addConstraint(Sketcher.Constraint("Symmetric", 7, 2, 20, 2, -1))
sketch5.addConstraint(Sketcher.Constraint("Symmetric", 5, 2, 22, 2, -1))
sketch5.addConstraint(Sketcher.Constraint("Equal", 7, 9))
sketch5.addConstraint(Sketcher.Constraint("Equal", 23, 0))
sketch5.addConstraint(Sketcher.Constraint("Equal", 19, 4))
sketch5.addConstraint(Sketcher.Constraint("DistanceX", 1, 1, 1, 2, 30.0))
sketch5.addConstraint(Sketcher.Constraint("DistanceX", 5, 1, 5, 2, 1.0))
sketch5.addConstraint(Sketcher.Constraint("DistanceY", 8, 1, 8, 2, 15.0))
sketch5.addConstraint(Sketcher.Constraint("DistanceY", 0, 2, -1, 1, 88.0))
sketch5.addConstraint(Sketcher.Constraint("DistanceY", 4, 2, -1, 1, 25.0))
sketch5.addConstraint(Sketcher.Constraint("DistanceY", 8, 2, -1, 1, 20.0))
sketch5.addConstraint(Sketcher.Constraint("DistanceX", -1, 1, 8, 2, 93.182621))
sketch5.addConstraint(Sketcher.Constraint("DistanceX", 4, 2, 0, 2, 65.488131))
sketch5.addConstraint(Sketcher.Constraint("DistanceX", 0, 2, -1, 1, 22.901013))
sketch5.setExpression("Constraints[57]", "Params.sketch5_width")
sketch5.setExpression("Constraints[58]", "Params.sketch5_width2")
sketch5.setExpression("Constraints[59]", "Params.sketch5_height")
pocket4 = body.newObject("PartDesign::Pocket", "Pocket003")
pocket4.Profile = sketch5
pocket4.setExpression("Length", "Params.pocket4_length")
pocket4.Midplane = True

# Sketch on XZ plane
sketch6 = body.newObject("Sketcher::SketchObject", "Sketch005")
sketch6.AttachmentSupport = (doc.getObject("XZ_Plane"), [""])
sketch6.MapMode = "FlatFace"
sketch6.AttachmentOffset = App.Placement(App.Vector(0, 0, -5), App.Rotation())
sketch6.addGeometry(Part.Circle(App.Vector(82.2, -2.8, 0), App.Vector(0, 0, 1), 0.5), False)
sketch6.addGeometry(Part.Circle(App.Vector(82.2, 5.2, 0), App.Vector(0, 0, 1), 0.5), False)
sketch6.addConstraint(Sketcher.Constraint("Equal", 0, 1))
sketch6.addConstraint(Sketcher.Constraint("Vertical", 0, 3, 1, 3))
sketch6.addConstraint(Sketcher.Constraint("Diameter", 0, 1.0))
sketch6.addConstraint(Sketcher.Constraint("DistanceY", 0, 3, 1, 3, 8.0))
sketch6.addConstraint(Sketcher.Constraint("DistanceY", 0, 3, -1, 1, 2.835581))
sketch6.addConstraint(Sketcher.Constraint("DistanceX", -1, 1, 0, 3, 82.244113))
sketch6.setExpression("Constraints[2]", "Params.sketch6_diameter")
pocket5 = body.newObject("PartDesign::Pocket", "Pocket004")
pocket5.Profile = sketch6
pocket5.setExpression("Length", "Params.pocket5_length")
pocket5.Midplane = True

doc.recompute()
